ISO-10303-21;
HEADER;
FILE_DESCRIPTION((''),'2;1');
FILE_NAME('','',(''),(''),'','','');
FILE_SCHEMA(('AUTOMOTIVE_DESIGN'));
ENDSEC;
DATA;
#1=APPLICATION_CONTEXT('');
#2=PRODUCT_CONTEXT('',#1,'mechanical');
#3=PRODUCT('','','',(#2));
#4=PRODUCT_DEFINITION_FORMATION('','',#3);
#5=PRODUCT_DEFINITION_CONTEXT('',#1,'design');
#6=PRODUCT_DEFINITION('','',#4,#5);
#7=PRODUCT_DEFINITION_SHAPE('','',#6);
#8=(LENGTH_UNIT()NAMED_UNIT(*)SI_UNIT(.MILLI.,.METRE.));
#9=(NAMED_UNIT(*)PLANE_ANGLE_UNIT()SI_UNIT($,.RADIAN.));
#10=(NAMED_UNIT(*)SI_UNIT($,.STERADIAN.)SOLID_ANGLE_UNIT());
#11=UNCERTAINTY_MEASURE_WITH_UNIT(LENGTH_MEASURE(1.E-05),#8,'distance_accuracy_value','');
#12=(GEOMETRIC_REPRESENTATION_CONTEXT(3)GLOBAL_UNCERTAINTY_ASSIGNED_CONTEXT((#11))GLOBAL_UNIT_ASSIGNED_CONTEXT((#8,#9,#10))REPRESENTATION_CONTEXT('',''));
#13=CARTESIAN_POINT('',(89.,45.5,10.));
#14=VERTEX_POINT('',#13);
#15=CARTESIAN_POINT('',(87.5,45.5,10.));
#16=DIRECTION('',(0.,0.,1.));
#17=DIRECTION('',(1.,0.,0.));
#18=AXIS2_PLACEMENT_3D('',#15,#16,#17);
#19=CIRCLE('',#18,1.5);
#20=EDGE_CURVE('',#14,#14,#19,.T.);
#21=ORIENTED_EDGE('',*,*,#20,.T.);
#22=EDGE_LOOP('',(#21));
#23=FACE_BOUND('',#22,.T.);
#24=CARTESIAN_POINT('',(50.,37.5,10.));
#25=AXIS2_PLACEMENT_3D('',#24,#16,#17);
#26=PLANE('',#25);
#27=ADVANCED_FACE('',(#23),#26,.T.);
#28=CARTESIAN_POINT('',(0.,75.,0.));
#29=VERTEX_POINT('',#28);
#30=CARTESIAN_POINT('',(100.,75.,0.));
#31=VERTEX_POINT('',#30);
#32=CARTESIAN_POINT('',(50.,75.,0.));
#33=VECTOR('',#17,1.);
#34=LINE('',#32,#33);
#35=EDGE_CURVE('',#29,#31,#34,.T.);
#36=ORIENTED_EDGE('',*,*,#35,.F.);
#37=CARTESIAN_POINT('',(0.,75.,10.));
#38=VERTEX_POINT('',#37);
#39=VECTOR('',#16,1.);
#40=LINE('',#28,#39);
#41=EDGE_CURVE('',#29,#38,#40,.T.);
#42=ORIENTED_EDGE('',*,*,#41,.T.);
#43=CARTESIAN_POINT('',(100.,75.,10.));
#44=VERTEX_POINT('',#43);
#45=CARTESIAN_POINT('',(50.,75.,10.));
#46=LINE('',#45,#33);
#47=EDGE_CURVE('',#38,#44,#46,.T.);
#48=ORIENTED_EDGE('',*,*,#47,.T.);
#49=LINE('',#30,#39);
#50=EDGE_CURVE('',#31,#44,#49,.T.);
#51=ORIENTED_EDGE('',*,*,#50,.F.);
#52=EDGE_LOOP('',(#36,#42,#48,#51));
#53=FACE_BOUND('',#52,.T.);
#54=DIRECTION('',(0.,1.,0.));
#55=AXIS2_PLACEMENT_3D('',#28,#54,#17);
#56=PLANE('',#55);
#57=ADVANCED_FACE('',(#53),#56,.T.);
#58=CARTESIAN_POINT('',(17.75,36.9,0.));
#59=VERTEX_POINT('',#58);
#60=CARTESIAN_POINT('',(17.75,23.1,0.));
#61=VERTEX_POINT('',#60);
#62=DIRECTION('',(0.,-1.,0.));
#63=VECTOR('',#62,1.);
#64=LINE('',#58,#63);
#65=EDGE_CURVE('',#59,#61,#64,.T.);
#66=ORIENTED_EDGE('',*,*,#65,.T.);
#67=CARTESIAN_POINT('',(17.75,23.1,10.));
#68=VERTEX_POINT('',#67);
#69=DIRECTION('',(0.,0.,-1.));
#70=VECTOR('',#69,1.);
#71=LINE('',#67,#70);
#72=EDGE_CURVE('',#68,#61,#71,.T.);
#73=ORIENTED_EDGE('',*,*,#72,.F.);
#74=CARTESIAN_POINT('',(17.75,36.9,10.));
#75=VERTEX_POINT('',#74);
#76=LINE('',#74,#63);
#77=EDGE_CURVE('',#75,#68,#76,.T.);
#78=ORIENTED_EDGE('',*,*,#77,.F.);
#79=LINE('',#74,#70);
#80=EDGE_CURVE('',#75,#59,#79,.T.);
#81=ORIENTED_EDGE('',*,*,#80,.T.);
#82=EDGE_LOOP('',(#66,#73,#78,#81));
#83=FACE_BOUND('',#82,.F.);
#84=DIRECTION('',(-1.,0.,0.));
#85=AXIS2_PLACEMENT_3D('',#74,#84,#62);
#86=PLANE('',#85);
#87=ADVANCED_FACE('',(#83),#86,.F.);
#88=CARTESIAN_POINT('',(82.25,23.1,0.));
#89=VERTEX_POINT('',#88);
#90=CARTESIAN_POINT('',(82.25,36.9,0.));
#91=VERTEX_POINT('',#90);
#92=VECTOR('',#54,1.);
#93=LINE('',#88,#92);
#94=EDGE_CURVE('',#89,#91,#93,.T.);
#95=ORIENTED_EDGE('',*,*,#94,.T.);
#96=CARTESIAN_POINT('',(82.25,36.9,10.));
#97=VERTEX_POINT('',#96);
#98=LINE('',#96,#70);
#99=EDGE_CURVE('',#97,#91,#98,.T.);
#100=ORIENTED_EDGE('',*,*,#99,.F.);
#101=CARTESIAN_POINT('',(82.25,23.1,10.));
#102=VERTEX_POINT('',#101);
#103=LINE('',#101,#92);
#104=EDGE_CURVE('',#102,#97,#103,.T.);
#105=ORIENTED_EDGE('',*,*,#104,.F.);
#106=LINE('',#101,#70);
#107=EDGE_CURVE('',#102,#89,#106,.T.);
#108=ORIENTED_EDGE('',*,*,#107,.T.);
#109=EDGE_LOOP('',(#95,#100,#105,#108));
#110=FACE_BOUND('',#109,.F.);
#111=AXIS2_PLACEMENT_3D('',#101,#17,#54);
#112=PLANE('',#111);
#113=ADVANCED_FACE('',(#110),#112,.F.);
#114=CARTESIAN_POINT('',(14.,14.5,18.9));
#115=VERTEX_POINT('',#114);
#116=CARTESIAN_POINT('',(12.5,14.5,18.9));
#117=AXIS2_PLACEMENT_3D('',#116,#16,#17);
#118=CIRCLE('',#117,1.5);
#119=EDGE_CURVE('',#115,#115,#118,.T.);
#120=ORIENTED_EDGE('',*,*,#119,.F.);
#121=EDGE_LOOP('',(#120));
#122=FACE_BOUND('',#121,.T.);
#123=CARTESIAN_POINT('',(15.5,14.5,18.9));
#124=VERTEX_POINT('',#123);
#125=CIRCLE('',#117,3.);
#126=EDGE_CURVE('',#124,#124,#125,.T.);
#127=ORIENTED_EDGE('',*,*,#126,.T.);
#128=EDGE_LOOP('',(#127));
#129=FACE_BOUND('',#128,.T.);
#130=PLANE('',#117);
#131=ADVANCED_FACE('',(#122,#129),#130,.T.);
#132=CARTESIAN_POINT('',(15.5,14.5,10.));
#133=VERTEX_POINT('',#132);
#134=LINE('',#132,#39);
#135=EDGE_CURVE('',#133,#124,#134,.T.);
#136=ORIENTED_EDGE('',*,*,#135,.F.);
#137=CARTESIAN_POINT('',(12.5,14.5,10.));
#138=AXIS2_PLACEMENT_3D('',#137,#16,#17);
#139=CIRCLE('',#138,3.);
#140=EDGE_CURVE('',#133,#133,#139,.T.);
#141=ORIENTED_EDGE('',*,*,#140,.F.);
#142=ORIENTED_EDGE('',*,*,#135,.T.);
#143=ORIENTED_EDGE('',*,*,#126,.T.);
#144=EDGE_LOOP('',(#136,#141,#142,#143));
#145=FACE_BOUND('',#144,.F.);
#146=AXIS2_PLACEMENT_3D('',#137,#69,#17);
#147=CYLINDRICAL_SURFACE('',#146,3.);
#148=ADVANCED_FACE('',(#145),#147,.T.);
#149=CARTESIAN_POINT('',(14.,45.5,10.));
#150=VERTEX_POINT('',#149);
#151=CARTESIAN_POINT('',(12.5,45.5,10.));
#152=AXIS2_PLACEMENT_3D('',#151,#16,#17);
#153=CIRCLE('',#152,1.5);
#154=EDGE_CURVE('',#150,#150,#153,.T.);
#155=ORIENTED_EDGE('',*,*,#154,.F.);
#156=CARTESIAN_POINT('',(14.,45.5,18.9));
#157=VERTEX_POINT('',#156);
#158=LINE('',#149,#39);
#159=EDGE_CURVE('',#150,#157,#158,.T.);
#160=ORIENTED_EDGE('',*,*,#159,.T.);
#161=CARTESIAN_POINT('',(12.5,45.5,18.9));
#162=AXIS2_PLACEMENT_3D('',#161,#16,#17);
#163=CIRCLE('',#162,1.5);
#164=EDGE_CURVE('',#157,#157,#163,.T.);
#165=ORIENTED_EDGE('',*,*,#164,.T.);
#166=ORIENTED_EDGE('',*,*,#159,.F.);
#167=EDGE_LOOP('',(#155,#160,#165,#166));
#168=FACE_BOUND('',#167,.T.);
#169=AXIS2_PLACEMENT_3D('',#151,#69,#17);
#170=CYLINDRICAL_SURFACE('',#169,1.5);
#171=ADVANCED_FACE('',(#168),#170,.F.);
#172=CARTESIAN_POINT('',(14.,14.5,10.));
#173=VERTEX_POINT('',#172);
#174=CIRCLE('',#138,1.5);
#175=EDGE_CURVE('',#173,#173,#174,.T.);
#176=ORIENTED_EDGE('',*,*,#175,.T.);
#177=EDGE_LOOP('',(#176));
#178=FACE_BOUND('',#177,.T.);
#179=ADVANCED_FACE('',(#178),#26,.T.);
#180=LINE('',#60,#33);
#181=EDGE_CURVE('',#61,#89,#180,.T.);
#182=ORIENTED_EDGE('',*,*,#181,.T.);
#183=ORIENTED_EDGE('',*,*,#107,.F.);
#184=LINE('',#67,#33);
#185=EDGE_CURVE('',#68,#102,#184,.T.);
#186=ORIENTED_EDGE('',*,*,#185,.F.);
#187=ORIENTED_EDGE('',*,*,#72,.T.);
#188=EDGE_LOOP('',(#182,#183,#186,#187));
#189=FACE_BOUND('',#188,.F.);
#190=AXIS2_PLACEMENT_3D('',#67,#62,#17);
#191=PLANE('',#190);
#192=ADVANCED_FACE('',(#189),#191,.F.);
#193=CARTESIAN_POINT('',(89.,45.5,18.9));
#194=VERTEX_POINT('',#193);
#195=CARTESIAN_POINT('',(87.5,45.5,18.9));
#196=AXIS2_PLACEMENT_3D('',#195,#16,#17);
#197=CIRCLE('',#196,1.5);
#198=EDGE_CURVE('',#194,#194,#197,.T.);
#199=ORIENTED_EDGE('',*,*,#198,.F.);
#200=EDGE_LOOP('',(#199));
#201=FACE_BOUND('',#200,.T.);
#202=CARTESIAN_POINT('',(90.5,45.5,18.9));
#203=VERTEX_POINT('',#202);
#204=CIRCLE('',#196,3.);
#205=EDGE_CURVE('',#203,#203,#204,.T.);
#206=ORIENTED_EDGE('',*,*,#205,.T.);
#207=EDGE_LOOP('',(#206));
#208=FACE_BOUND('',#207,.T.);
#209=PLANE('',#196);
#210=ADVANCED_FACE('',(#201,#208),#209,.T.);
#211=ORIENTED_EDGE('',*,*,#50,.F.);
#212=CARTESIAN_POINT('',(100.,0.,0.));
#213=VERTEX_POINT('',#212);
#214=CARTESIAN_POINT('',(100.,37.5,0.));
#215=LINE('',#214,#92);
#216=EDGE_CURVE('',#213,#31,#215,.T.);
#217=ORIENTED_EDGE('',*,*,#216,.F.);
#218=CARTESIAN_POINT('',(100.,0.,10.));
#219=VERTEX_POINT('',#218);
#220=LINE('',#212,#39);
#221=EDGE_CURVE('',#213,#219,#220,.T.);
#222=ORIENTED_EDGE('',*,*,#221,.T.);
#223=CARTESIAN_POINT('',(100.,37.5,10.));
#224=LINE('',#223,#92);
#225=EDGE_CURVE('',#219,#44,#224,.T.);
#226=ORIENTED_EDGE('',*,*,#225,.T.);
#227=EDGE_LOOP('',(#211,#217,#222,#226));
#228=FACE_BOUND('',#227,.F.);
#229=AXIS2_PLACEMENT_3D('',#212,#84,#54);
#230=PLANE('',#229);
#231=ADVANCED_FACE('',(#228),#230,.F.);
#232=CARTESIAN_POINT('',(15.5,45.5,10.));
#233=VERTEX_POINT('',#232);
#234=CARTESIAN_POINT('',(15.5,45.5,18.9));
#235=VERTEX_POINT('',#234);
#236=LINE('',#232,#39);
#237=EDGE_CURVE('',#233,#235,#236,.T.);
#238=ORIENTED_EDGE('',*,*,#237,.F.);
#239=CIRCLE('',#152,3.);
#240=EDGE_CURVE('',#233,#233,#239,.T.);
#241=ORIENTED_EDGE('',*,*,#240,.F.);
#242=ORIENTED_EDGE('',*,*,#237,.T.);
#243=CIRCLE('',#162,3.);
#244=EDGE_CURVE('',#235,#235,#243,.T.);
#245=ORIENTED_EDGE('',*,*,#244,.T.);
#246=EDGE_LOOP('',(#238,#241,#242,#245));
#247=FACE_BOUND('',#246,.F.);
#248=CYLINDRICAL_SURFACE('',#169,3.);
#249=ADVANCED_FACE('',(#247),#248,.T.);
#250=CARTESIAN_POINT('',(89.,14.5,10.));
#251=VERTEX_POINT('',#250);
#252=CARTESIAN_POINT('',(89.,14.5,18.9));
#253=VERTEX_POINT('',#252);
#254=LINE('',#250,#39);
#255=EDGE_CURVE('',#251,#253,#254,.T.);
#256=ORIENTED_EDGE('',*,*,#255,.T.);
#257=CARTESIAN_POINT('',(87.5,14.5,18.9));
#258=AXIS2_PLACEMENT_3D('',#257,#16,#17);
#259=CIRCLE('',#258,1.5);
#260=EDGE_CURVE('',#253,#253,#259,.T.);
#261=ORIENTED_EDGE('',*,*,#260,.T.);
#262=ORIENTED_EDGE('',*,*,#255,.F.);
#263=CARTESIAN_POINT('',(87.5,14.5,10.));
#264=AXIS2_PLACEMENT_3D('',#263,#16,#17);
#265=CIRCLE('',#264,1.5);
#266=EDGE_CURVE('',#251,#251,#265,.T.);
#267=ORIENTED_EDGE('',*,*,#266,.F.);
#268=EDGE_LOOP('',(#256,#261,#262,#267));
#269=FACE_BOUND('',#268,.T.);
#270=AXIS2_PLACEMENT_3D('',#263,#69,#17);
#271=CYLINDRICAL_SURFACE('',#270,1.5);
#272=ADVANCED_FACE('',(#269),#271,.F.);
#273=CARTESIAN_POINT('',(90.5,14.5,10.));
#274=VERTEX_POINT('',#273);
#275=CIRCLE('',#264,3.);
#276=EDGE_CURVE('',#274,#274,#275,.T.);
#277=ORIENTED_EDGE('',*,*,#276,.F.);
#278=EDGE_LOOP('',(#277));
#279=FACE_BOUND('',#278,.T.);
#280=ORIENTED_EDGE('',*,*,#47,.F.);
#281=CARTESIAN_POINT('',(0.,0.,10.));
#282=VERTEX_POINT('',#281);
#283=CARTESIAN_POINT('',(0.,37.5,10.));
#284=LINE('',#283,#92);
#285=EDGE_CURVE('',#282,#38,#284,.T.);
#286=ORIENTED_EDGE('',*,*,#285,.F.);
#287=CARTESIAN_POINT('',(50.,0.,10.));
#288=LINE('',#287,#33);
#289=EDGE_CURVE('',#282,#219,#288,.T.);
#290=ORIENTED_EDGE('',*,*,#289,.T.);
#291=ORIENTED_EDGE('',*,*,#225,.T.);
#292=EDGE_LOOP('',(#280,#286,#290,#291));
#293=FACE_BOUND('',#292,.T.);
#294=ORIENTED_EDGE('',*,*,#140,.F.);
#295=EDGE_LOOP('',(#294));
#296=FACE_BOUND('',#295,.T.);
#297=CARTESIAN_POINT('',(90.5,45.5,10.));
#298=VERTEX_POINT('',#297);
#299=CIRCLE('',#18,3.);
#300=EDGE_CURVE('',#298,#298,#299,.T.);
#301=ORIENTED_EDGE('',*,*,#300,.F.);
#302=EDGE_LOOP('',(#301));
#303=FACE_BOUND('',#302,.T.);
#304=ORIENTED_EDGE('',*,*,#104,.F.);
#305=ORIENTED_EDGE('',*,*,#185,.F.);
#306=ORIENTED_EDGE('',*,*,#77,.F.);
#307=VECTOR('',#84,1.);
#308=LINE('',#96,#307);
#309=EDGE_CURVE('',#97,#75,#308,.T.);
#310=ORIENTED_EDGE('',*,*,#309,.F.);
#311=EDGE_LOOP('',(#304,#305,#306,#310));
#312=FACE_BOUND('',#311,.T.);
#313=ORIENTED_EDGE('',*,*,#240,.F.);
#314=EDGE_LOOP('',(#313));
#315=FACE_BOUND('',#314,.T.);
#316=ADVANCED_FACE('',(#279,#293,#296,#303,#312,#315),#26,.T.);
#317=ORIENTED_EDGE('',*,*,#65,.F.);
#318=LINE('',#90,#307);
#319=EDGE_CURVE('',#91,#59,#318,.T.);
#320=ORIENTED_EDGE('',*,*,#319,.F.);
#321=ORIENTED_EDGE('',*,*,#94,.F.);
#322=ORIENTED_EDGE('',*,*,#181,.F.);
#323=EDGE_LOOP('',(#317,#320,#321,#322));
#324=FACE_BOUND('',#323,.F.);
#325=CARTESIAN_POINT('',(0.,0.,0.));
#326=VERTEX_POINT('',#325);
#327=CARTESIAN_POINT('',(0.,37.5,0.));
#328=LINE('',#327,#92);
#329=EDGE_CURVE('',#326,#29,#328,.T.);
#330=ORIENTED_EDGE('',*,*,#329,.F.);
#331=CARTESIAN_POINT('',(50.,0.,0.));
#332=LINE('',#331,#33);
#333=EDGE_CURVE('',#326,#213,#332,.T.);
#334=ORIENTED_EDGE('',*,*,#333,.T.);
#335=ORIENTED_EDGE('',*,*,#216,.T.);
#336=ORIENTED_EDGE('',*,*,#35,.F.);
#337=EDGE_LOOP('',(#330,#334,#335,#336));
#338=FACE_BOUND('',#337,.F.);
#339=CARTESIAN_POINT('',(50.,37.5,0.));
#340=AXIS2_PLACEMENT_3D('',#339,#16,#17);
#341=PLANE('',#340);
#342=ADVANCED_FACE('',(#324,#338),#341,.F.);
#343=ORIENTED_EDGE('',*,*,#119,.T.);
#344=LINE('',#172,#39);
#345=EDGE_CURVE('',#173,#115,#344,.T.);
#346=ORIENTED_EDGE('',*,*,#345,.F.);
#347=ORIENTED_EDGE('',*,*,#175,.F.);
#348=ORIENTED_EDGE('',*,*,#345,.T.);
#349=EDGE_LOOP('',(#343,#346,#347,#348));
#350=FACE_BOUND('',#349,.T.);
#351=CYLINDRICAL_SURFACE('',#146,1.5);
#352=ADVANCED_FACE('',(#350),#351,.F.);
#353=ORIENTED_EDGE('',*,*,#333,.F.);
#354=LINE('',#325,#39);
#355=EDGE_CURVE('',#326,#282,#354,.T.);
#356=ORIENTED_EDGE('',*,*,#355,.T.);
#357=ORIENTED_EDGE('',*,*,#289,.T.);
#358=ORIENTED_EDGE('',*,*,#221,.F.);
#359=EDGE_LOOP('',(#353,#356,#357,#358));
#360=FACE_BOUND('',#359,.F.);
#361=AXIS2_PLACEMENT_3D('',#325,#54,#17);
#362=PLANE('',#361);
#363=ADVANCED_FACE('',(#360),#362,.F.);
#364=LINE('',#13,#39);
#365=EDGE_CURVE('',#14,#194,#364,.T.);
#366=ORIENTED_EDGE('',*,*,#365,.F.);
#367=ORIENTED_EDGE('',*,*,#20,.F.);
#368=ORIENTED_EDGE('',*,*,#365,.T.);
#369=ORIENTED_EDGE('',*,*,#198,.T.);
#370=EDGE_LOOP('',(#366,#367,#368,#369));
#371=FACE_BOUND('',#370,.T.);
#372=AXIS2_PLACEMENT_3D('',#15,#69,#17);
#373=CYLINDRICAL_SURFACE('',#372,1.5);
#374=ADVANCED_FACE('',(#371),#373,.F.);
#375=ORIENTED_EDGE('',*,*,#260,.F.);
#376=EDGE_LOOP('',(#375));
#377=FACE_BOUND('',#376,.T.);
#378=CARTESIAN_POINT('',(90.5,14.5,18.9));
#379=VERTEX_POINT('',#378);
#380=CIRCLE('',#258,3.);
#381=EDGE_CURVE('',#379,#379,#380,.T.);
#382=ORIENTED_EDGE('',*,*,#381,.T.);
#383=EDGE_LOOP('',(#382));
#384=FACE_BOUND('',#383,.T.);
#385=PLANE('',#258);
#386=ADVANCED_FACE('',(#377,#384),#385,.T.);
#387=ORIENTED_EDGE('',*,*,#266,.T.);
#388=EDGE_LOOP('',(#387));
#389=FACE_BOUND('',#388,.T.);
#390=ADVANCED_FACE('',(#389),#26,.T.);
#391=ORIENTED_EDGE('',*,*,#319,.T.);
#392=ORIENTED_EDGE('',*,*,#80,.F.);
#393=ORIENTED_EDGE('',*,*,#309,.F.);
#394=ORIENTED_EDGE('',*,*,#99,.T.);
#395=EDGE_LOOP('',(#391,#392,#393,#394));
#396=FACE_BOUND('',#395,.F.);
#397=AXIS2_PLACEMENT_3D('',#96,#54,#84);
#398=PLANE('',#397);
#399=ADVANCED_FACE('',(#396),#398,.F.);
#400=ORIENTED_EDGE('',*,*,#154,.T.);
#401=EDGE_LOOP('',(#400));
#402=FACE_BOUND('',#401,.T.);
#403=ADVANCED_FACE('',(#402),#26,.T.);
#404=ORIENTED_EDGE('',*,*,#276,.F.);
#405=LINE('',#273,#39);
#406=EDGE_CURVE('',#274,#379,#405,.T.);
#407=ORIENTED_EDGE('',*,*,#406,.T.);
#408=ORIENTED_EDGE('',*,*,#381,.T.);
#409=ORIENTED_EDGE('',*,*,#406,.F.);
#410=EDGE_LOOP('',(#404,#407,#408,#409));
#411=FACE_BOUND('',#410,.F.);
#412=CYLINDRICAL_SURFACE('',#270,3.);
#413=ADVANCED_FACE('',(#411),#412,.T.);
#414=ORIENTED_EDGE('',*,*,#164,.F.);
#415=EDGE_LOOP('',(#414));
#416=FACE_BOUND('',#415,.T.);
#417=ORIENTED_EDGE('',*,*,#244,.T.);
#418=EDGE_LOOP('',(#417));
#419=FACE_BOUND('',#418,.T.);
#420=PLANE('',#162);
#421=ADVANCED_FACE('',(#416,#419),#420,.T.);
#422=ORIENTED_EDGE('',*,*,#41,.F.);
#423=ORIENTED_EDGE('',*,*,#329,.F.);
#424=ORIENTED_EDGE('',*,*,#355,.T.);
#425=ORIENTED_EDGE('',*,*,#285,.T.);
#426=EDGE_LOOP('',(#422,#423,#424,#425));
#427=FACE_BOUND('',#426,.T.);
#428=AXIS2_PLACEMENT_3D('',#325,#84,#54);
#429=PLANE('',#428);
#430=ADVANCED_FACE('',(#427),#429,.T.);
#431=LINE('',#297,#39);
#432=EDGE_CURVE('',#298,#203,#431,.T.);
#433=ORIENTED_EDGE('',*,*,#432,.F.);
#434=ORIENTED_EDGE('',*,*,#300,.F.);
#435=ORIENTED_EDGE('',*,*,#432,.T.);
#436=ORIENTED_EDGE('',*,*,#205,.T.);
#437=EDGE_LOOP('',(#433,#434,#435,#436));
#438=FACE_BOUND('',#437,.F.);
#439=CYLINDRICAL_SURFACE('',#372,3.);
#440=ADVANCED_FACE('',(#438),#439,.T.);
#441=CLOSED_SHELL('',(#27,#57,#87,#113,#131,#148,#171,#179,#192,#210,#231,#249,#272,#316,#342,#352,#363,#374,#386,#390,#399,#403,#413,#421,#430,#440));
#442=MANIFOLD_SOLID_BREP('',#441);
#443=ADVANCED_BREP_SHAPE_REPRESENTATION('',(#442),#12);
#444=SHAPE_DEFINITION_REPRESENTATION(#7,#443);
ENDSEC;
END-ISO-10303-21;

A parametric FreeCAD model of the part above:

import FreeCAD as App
import Part
import Sketcher
from FreeCAD import Vector


def add_polygon(sketch, points):
    """Adds a closed chain of lines whose ends are joined by coincident constraints."""
    first, n = sketch.GeometryCount, len(points)
    for a, b in zip(points, points[1:] + points[:1]):
        sketch.addGeometry(Part.LineSegment(App.Vector(*a, 0), App.Vector(*b, 0)), False)
    for i in range(n):
        sketch.addConstraint(Sketcher.Constraint("Coincident", first + i, 2, first + (i + 1) % n, 1))

doc = App.newDocument("Part")
body = doc.addObject("PartDesign::Body", "Body")

sketch1 = doc.addObject("Sketcher::SketchObject", "Sketch")
body.addObject(sketch1)
sketch1.AttachmentSupport = (doc.XY_Plane, [""])
sketch1.MapMode = "FlatFace"
add_polygon(sketch1, [(0, 75), (0, 0), (100, 0), (100, 75)])
sketch1.addConstraint([
    Sketcher.Constraint("Vertical", 0),
    Sketcher.Constraint("Horizontal", 1),
    Sketcher.Constraint("Vertical", 2),
    Sketcher.Constraint("Horizontal", 3),
    Sketcher.Constraint("Coincident", 0, 2, -1, 1),
    Sketcher.Constraint("DistanceX", 1, 1, 1, 2, 100.0),
    Sketcher.Constraint("DistanceY", 0, 2, 0, 1, 75.0),
])
pad1 = doc.addObject("PartDesign::Pad", "Pad")
body.addObject(pad1)
pad1.Profile = sketch1
pad1.Length = 10

sketch2 = doc.addObject("Sketcher::SketchObject", "Sketch001")
body.addObject(sketch2)
sketch2.AttachmentSupport = (doc.XY_Plane, [""])
sketch2.MapMode = "FlatFace"
sketch2.AttachmentOffset = App.Placement(Vector(0, 0, 10), App.Rotation())
sketch2.addGeometry([
    Part.Circle(Vector(12.5, 14.5, 0), Vector(0, 0, 1), 3),
    Part.Circle(Vector(12.5, 14.5, 0), Vector(0, 0, 1), 1.5),
    Part.Circle(Vector(12.5, 45.5, 0), Vector(0, 0, 1), 3),
    Part.Circle(Vector(12.5, 45.5, 0), Vector(0, 0, 1), 1.5),
    Part.Circle(Vector(87.5, 45.5, 0), Vector(0, 0, 1), 3),
    Part.Circle(Vector(87.5, 45.5, 0), Vector(0, 0, 1), 1.5),
    Part.Circle(Vector(87.5, 14.5, 0), Vector(0, 0, 1), 3),
    Part.Circle(Vector(87.5, 14.5, 0), Vector(0, 0, 1), 1.5),
], False)
sketch2.addConstraint([
    Sketcher.Constraint("Coincident", 1, 3, 0, 3),
    Sketcher.Constraint("Coincident", 3, 3, 2, 3),
    Sketcher.Constraint("Coincident", 5, 3, 4, 3),
    Sketcher.Constraint("Coincident", 7, 3, 6, 3),
    Sketcher.Constraint("Equal", 0, 2),
    Sketcher.Constraint("Equal", 1, 3),
    Sketcher.Constraint("Equal", 2, 4),
    Sketcher.Constraint("Equal", 3, 5),
    Sketcher.Constraint("Equal", 4, 6),
    Sketcher.Constraint("Equal", 5, 7),
    Sketcher.Constraint("Horizontal", 3, 3, 4, 3),
    Sketcher.Constraint("Horizontal", 1, 3, 6, 3),
    Sketcher.Constraint("Vertical", 1, 3, 2, 3),
    Sketcher.Constraint("Vertical", 5, 3, 6, 3),
    Sketcher.Constraint("Diameter", 0, 6.0),
    Sketcher.Constraint("Diameter", 1, 3.0),
    Sketcher.Constraint("DistanceY", 0, 3, 2, 3, 31.0),
    Sketcher.Constraint("DistanceX", 2, 3, 4, 3, 75.0),
    Sketcher.Constraint("DistanceX", -1, 1, 0, 3, 12.5),
    Sketcher.Constraint("DistanceY", -1, 1, 0, 3, 14.5),
])
pad2 = doc.addObject("PartDesign::Pad", "Pad001")
body.addObject(pad2)
pad2.Profile = sketch2
pad2.Length = 8.9

sketch3 = doc.addObject("Sketcher::SketchObject", "Sketch002")
body.addObject(sketch3)
sketch3.AttachmentSupport = (doc.XY_Plane, [""])
sketch3.MapMode = "FlatFace"
sketch3.AttachmentOffset = App.Placement(Vector(0, 0, 10), App.Rotation())
add_polygon(sketch3, [(82, 23), (82, 37), (18, 37), (18, 23)])
sketch3.addConstraint([
    Sketcher.Constraint("Vertical", 0),
    Sketcher.Constraint("Horizontal", 1),
    Sketcher.Constraint("Vertical", 2),
    Sketcher.Constraint("Horizontal", 3),
    Sketcher.Constraint("DistanceX", 1, 2, 1, 1, 64.5),
    Sketcher.Constraint("DistanceY", 0, 1, 0, 2, 13.8),
    Sketcher.Constraint("DistanceY", -1, 1, 0, 2, 36.9),
    Sketcher.Constraint("DistanceX", -1, 1, 0, 2, 82.25),
])
pocket1 = doc.addObject("PartDesign::Pocket", "Pocket")
body.addObject(pocket1)
pocket1.Profile = sketch3
pocket1.Length = 10

doc.recompute()
